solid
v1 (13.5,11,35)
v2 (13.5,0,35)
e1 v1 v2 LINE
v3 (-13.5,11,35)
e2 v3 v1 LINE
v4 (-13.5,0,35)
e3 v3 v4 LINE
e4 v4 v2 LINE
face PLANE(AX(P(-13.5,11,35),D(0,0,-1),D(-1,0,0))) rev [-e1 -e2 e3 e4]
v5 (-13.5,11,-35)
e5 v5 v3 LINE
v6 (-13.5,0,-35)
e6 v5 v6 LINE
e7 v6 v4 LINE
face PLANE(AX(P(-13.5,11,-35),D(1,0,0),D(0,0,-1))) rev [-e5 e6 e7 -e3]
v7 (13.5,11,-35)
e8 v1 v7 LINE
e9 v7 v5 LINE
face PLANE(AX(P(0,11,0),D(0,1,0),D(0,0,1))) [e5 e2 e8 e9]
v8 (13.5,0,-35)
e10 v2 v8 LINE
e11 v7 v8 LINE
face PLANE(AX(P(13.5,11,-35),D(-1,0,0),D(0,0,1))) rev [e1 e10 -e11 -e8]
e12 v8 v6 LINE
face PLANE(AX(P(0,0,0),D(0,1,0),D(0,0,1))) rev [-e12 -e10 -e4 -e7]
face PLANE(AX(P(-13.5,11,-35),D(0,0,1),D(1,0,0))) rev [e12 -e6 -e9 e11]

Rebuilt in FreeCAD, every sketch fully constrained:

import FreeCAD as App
import Part
import Sketcher


def add_polygon(sketch, points):
    """Adds a closed chain of lines whose ends are joined by coincident constraints."""
    first, n = sketch.GeometryCount, len(points)
    for a, b in zip(points, points[1:] + points[:1]):
        sketch.addGeometry(Part.LineSegment(App.Vector(*a, 0), App.Vector(*b, 0)), False)
    for i in range(n):
        sketch.addConstraint(Sketcher.Constraint("Coincident", first + i, 2, first + (i + 1) % n, 1))

doc = App.newDocument("Part")
body = doc.addObject("PartDesign::Body", "Body")

sketch1 = doc.addObject("Sketcher::SketchObject", "Sketch")
body.addObject(sketch1)
sketch1.AttachmentSupport = (doc.XZ_Plane, [""])
sketch1.MapMode = "FlatFace"
add_polygon(sketch1, [(-14, -35), (-14, 35), (14, 35), (14, -35)])
sketch1.addConstraint(Sketcher.Constraint("Vertical", 0))
sketch1.addConstraint(Sketcher.Constraint("Horizontal", 1))
sketch1.addConstraint(Sketcher.Constraint("Vertical", 2))
sketch1.addConstraint(Sketcher.Constraint("Horizontal", 3))
sketch1.addConstraint(Sketcher.Constraint("Symmetric", 0, 2, 2, 2, -1, 1))
sketch1.addConstraint(Sketcher.Constraint("DistanceX", 1, 1, 1, 2, 27.0))
sketch1.addConstraint(Sketcher.Constraint("DistanceY", 0, 1, 0, 2, 70.0))
pad1 = doc.addObject("PartDesign::Pad", "Pad")
body.addObject(pad1)
pad1.Profile = sketch1
pad1.Length = 11
pad1.Reversed = True

doc.recompute()
